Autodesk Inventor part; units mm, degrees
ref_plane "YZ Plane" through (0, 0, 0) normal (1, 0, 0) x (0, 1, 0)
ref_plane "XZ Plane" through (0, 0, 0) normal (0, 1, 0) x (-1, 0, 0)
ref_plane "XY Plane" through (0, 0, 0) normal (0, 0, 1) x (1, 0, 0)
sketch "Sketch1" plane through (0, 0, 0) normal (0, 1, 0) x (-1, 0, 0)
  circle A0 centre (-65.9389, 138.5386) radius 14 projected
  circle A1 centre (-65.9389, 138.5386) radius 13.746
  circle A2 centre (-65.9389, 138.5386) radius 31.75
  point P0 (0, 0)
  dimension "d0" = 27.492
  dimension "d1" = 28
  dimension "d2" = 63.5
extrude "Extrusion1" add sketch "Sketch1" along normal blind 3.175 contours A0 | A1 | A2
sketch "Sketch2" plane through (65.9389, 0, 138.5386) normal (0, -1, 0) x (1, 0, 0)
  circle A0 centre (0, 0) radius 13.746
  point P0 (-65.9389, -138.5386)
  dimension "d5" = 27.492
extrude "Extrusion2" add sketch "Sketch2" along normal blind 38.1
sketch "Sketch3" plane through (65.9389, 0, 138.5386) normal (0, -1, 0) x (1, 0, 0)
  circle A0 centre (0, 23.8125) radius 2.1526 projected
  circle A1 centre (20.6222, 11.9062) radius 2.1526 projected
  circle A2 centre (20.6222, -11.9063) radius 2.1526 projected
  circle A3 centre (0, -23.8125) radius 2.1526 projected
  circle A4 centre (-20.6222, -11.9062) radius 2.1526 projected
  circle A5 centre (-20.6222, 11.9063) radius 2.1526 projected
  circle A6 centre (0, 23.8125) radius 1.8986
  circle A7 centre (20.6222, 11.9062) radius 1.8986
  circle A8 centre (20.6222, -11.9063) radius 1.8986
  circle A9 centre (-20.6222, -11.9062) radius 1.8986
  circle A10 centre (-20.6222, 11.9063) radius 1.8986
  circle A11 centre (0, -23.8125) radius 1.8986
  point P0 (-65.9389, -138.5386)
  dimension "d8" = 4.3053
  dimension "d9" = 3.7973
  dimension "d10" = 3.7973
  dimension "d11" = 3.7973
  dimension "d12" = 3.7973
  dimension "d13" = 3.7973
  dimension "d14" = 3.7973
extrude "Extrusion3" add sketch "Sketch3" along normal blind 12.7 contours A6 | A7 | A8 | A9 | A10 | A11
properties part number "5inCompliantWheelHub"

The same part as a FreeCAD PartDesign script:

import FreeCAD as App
import Part
import Sketcher
Q = App.Units.Quantity

doc = App.newDocument("Part")
params = doc.addObject("Spreadsheet::Sheet", "Params")
for row, (alias, value) in enumerate([
    ("sketch1_diameter", "2.5 in"),
    ("pad1_length", "0.125 in"),
    ("pad2_length", "1.5 in"),
    ("pad3_length", "0.5 in"),
], start=1):
    params.set(f"A{row}", alias)
    params.set(f"B{row}", "=" + value)
    params.setAlias(f"B{row}", alias)

body = doc.addObject("PartDesign::Body", "Body")

sketch1 = doc.addObject("Sketcher::SketchObject", "Sketch")
body.addObject(sketch1)
sketch1.AttachmentSupport = (doc.XZ_Plane, [""])
sketch1.MapMode = "FlatFace"
sketch1.addGeometry(Part.Circle(App.Vector(65.9389, 138.5386, 0), App.Vector(0, 0, 1), 31.75), False)
sketch1.addConstraint(Sketcher.Constraint("Diameter", 0, Q("2.5 in")))
sketch1.addConstraint(Sketcher.Constraint("DistanceX", -1, 1, 0, 3, Q("65.939 mm")))
sketch1.addConstraint(Sketcher.Constraint("DistanceY", -1, 1, 0, 3, Q("138.5386 mm")))
sketch1.setExpression("Constraints[0]", "Params.sketch1_diameter")
pad1 = doc.addObject("PartDesign::Pad", "Pad")
body.addObject(pad1)
pad1.Profile = sketch1
pad1.setExpression("Length", "Params.pad1_length")
pad1.Reversed = True

sketch2 = doc.addObject("Sketcher::SketchObject", "Sketch001")
body.addObject(sketch2)
sketch2.AttachmentSupport = (doc.XZ_Plane, [""])
sketch2.MapMode = "FlatFace"
sketch2.addGeometry(Part.Circle(App.Vector(65.9389, 138.5386, 0), App.Vector(0, 0, 1), 13.746), False)
sketch2.addConstraint(Sketcher.Constraint("Diameter", 0, Q("27.492 mm")))
sketch2.addConstraint(Sketcher.Constraint("DistanceX", -1, 1, 0, 3, Q("65.939 mm")))
sketch2.addConstraint(Sketcher.Constraint("DistanceY", -1, 1, 0, 3, Q("138.5386 mm")))
pad2 = doc.addObject("PartDesign::Pad", "Pad001")
body.addObject(pad2)
pad2.Profile = sketch2
pad2.setExpression("Length", "Params.pad2_length")

sketch3 = doc.addObject("Sketcher::SketchObject", "Sketch002")
body.addObject(sketch3)
sketch3.AttachmentSupport = (doc.XZ_Plane, [""])
sketch3.MapMode = "FlatFace"
sketch3.addGeometry(Part.Circle(App.Vector(65.9389, 162.3511, 0), App.Vector(0, 0, 1), 1.8986), False)
sketch3.addGeometry(Part.Circle(App.Vector(86.5611, 150.4448, 0), App.Vector(0, 0, 1), 1.8986), False)
sketch3.addGeometry(Part.Circle(App.Vector(86.5611, 126.6323, 0), App.Vector(0, 0, 1), 1.8986), False)
sketch3.addGeometry(Part.Circle(App.Vector(45.3167, 126.6324, 0), App.Vector(0, 0, 1), 1.8986), False)
sketch3.addGeometry(Part.Circle(App.Vector(45.3167, 150.4449, 0), App.Vector(0, 0, 1), 1.8986), False)
sketch3.addGeometry(Part.Circle(App.Vector(65.9389, 114.7261, 0), App.Vector(0, 0, 1), 1.8986), False)
sketch3.addConstraint(Sketcher.Constraint("Equal", 0, 1))
sketch3.addConstraint(Sketcher.Constraint("Equal", 1, 2))
sketch3.addConstraint(Sketcher.Constraint("Equal", 2, 3))
sketch3.addConstraint(Sketcher.Constraint("Equal", 3, 4))
sketch3.addConstraint(Sketcher.Constraint("Equal", 4, 5))
sketch3.addConstraint(Sketcher.Constraint("Horizontal", 2, 3, 3, 3))
sketch3.addConstraint(Sketcher.Constraint("Horizontal", 1, 3, 4, 3))
sketch3.addConstraint(Sketcher.Constraint("Vertical", 1, 3, 2, 3))
sketch3.addConstraint(Sketcher.Constraint("Vertical", 3, 3, 4, 3))
sketch3.addConstraint(Sketcher.Constraint("Vertical", 0, 3, 5, 3))
sketch3.addConstraint(Sketcher.Constraint("Diameter", 0, Q("0.1495 in")))
sketch3.addConstraint(Sketcher.Constraint("DistanceY", 1, 3, 0, 3, Q("0.468752 in")))
sketch3.addConstraint(Sketcher.Constraint("DistanceY", 2, 3, 1, 3, Q("0.9375 in")))
sketch3.addConstraint(Sketcher.Constraint("DistanceY", 5, 3, 2, 3, Q("0.468748 in")))
sketch3.addConstraint(Sketcher.Constraint("DistanceX", 0, 3, 1, 3, Q("0.8119 in")))
sketch3.addConstraint(Sketcher.Constraint("DistanceX", 3, 3, 2, 3, Q("1.6238 in")))
sketch3.addConstraint(Sketcher.Constraint("DistanceX", -1, 1, 0, 3, Q("65.939 mm")))
sketch3.addConstraint(Sketcher.Constraint("DistanceY", -1, 1, 0, 3, Q("162.351 mm")))
pad3 = doc.addObject("PartDesign::Pad", "Pad002")
body.addObject(pad3)
pad3.Profile = sketch3
pad3.setExpression("Length", "Params.pad3_length")

doc.recompute()
